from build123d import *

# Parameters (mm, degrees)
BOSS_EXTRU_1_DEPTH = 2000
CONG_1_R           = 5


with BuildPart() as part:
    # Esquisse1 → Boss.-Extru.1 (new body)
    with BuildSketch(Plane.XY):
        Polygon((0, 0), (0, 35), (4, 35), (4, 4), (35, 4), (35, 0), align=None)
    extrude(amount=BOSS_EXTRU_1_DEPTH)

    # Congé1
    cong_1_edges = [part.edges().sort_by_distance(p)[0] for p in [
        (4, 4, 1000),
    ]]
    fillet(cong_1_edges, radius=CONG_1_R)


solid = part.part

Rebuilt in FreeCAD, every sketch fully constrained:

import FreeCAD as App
import Part
import Sketcher


def edges_at(feature, points):
    """Names of the edges that pass closest to the given points."""
    edges = feature.Shape.Edges
    near = lambda p: min(range(len(edges)), key=lambda i: edges[i].distToShape(Part.Vertex(*p))[0])
    return sorted({f"Edge{near(p) + 1}" for p in points})

doc = App.newDocument("Part")
body = doc.addObject("PartDesign::Body", "Body")

# Sketch on XY plane
sketch1 = body.newObject("Sketcher::SketchObject", "Sketch")
sketch1.AttachmentSupport = (doc.getObject("XY_Plane"), [""])
sketch1.MapMode = "FlatFace"
sketch1.addGeometry([
    Part.LineSegment(App.Vector(0, 35, 0), App.Vector(0, 0, 0)),  # 0
    Part.LineSegment(App.Vector(0, 0, 0), App.Vector(35, 0, 0)),  # 1
    Part.LineSegment(App.Vector(35, 0, 0), App.Vector(35, 4, 0)),  # 2
    Part.LineSegment(App.Vector(35, 4, 0), App.Vector(4, 4, 0)),  # 3
    Part.LineSegment(App.Vector(4, 4, 0), App.Vector(4, 35, 0)),  # 4
    Part.LineSegment(App.Vector(4, 35, 0), App.Vector(0, 35, 0)),  # 5
], False)
sketch1.addConstraint([
    Sketcher.Constraint("Coincident", 0, 2, 1, 1),
    Sketcher.Constraint("Coincident", 1, 2, 2, 1),
    Sketcher.Constraint("Coincident", 2, 2, 3, 1),
    Sketcher.Constraint("Coincident", 3, 2, 4, 1),
    Sketcher.Constraint("Coincident", 4, 2, 5, 1),
    Sketcher.Constraint("Coincident", 5, 2, 0, 1),
    Sketcher.Constraint("Vertical", 0),
    Sketcher.Constraint("Horizontal", 1),
    Sketcher.Constraint("Vertical", 2),
    Sketcher.Constraint("Horizontal", 3),
    Sketcher.Constraint("Vertical", 4),
    Sketcher.Constraint("Horizontal", 5),
    Sketcher.Constraint("Coincident", 0, 2, -1, 1),
    Sketcher.Constraint("Equal", 1, 0),
    Sketcher.Constraint("Equal", 5, 2),
    Sketcher.Constraint("DistanceX", 1, 1, 1, 2, 35.0),
    Sketcher.Constraint("DistanceX", 3, 2, 3, 1, 31.0),
])
pad1 = body.newObject("PartDesign::Pad", "Pad")
pad1.Profile = sketch1
pad1.Length = 2000
doc.recompute()

fillet = body.newObject("PartDesign::Fillet", "Fillet")
fillet.Base = (pad1, edges_at(pad1, [(4, 4, 1000)]))
fillet.Radius = 5

doc.recompute()
